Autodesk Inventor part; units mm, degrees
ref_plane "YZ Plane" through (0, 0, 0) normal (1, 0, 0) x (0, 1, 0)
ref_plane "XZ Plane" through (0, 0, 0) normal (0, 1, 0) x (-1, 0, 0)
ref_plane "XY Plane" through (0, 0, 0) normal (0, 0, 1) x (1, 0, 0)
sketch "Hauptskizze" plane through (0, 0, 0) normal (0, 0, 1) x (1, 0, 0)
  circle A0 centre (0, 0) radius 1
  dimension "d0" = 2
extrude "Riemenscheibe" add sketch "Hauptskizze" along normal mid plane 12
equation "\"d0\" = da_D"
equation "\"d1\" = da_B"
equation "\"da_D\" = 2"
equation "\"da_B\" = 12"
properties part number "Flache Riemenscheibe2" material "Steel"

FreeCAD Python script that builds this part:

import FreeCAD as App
import Part
import Sketcher
from FreeCAD import Vector

doc = App.newDocument("Part")
body = doc.addObject("PartDesign::Body", "Body")

sketch1 = body.newObject("Sketcher::SketchObject", "Sketch")
sketch1.AttachmentSupport = (doc.getObject("XY_Plane"), [""])
sketch1.MapMode = "FlatFace"
sketch1.addGeometry(Part.Circle(Vector(0, 0, 0), Vector(0, 0, 1), 1), False)
sketch1.addConstraint([
    Sketcher.Constraint("Coincident", 0, 3, -1, 1),
    Sketcher.Constraint("Diameter", 0, 2.0),
])
pad1 = body.newObject("PartDesign::Pad", "Pad")
pad1.Profile = sketch1
pad1.Length = 12
pad1.Midplane = True

doc.recompute()
